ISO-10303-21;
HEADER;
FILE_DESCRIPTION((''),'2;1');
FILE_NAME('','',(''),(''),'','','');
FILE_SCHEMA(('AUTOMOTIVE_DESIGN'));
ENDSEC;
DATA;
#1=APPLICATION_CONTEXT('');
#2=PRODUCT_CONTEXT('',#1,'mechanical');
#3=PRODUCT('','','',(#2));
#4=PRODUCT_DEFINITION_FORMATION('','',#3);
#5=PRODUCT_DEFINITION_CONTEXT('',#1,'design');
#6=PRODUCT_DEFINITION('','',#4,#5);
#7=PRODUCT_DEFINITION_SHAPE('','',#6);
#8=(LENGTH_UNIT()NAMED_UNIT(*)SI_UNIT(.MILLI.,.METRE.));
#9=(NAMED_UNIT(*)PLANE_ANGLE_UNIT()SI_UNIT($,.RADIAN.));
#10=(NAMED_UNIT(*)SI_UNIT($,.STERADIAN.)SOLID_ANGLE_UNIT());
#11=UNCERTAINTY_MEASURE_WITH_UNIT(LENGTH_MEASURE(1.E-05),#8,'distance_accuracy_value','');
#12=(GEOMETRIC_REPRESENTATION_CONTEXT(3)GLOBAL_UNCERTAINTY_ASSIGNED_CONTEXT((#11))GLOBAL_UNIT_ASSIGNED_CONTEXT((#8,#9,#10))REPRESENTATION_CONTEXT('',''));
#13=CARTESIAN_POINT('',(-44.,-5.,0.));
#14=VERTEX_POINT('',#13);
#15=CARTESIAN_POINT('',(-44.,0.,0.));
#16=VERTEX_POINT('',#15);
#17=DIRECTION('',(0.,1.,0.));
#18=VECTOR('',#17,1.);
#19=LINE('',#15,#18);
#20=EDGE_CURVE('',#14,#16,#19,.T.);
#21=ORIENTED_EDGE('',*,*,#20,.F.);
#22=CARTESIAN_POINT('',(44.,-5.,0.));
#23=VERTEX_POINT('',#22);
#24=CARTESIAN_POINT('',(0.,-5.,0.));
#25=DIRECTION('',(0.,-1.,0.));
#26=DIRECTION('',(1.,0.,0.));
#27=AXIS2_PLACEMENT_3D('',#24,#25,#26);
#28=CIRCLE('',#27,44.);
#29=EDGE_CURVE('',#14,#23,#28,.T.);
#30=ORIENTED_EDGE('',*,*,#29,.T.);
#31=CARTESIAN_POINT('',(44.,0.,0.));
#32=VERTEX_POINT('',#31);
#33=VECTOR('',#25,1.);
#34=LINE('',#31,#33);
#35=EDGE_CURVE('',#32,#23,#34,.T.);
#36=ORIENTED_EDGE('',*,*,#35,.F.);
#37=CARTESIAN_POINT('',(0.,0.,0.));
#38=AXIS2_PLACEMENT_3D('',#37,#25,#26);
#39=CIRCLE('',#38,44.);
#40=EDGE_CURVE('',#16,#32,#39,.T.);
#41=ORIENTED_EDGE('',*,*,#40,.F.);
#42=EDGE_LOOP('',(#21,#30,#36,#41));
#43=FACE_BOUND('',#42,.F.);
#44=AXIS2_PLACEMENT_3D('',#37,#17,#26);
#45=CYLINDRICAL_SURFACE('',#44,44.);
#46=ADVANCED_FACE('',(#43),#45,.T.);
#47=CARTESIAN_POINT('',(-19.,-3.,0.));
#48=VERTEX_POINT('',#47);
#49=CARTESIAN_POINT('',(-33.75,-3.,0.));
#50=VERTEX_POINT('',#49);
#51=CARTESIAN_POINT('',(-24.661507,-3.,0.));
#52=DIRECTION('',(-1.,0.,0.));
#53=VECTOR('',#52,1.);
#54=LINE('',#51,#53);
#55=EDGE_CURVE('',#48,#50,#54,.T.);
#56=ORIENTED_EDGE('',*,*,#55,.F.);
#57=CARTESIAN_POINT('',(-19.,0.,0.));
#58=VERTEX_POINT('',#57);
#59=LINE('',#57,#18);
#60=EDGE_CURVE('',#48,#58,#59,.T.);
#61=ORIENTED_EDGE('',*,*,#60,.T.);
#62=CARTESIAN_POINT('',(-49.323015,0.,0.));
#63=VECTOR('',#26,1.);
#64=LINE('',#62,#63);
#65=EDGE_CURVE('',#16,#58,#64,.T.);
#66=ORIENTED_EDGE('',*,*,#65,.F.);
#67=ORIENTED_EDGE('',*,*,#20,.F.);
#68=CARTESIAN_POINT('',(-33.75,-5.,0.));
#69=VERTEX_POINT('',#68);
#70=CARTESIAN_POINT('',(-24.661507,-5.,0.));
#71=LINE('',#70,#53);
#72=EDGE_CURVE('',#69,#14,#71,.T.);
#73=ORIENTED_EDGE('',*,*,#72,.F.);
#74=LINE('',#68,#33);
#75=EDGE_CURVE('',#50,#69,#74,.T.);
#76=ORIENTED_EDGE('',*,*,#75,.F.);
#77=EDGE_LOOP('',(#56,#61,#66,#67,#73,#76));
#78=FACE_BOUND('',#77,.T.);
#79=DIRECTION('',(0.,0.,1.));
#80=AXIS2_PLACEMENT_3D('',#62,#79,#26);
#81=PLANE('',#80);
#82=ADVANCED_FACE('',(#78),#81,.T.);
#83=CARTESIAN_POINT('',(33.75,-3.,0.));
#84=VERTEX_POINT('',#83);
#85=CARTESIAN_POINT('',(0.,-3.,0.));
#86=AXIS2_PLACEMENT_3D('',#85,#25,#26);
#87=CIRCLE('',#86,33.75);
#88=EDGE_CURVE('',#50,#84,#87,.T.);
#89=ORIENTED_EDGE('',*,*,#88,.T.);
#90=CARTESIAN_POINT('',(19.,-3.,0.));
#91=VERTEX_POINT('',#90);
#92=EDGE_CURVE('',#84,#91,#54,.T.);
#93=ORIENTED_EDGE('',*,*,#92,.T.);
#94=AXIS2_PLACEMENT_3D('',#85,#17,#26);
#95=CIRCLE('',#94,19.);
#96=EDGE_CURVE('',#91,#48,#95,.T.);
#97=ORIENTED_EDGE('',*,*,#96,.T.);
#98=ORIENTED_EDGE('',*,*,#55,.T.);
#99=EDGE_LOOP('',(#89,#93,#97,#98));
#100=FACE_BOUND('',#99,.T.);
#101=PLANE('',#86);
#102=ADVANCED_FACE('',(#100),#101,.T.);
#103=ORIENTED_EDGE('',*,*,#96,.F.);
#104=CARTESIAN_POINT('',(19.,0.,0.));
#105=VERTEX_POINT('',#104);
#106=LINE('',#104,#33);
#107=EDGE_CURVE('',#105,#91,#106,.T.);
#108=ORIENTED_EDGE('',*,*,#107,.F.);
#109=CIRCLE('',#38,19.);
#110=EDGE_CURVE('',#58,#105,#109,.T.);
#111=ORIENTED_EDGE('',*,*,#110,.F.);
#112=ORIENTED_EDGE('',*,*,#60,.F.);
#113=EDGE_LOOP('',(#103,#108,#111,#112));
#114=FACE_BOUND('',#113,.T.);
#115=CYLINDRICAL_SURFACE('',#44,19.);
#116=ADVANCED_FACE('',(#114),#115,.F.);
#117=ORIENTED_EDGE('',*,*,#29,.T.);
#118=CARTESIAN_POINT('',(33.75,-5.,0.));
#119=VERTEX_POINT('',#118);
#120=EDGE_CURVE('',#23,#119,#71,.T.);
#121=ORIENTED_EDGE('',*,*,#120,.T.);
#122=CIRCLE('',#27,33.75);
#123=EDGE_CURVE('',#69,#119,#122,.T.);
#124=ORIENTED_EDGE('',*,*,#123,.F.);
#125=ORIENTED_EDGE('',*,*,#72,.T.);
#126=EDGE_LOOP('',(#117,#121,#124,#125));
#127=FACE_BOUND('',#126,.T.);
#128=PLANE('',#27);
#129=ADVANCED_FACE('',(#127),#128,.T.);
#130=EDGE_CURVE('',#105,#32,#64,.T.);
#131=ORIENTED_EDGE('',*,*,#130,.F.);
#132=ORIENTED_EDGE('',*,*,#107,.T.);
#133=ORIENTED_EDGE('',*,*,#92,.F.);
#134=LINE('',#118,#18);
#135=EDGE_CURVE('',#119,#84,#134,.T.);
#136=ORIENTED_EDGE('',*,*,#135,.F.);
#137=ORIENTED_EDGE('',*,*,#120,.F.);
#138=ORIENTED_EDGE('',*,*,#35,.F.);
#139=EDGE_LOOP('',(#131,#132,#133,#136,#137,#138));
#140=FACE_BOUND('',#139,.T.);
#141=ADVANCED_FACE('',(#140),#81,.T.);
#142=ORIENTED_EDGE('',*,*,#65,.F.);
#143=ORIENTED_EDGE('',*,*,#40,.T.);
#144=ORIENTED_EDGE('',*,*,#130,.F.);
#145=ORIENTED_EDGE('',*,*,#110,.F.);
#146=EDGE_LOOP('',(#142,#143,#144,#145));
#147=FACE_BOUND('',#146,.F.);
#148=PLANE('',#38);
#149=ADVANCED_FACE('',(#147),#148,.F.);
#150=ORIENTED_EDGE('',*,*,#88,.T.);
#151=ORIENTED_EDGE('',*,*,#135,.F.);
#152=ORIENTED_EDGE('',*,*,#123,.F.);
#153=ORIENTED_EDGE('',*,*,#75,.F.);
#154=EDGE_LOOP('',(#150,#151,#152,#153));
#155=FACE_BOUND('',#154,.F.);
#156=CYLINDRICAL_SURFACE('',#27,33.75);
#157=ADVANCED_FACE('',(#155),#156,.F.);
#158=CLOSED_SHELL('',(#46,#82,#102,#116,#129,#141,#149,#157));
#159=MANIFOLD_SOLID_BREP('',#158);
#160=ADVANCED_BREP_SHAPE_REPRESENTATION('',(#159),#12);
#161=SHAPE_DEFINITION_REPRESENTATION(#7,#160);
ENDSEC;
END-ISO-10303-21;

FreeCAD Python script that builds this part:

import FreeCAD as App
import Part
import Sketcher
from FreeCAD import Vector

doc = App.newDocument("Part")
params = doc.addObject("Spreadsheet::Sheet", "Params")
for row, (alias, value) in enumerate([
    ("sketch1_diameter", "88 mm"),
    ("sketch1_diameter2", "38 mm"),
    ("pad1_length", "5 mm"),
    ("sketch2_diameter", "67.5 mm"),
    ("pocket1_length", "2 mm"),
    ("pocket2_length", "25 mm"),
], start=1):
    params.set(f"A{row}", alias)
    params.set(f"B{row}", "=" + value)
    params.setAlias(f"B{row}", alias)

body = doc.addObject("PartDesign::Body", "Body")

# Sketch on XZ plane
sketch1 = body.newObject("Sketcher::SketchObject", "Sketch")
sketch1.AttachmentSupport = (doc.getObject("XZ_Plane"), [""])
sketch1.MapMode = "FlatFace"
sketch1.addGeometry([
    Part.Circle(Vector(0, 0, 0), Vector(0, 0, 1), 44),
    Part.Circle(Vector(0, 0, 0), Vector(0, 0, 1), 19),
], False)
sketch1.addConstraint([
    Sketcher.Constraint("Coincident", 0, 3, -1, 1),
    Sketcher.Constraint("Coincident", 1, 3, -1, 1),
    Sketcher.Constraint("Diameter", 0, 88.0),
    Sketcher.Constraint("Diameter", 1, 38.0),
])
sketch1.setExpression("Constraints[2]", "Params.sketch1_diameter")
sketch1.setExpression("Constraints[3]", "Params.sketch1_diameter2")
pad1 = body.newObject("PartDesign::Pad", "Pad")
pad1.Profile = sketch1
pad1.setExpression("Length", "Params.pad1_length")

# Sketch on XZ plane
sketch2 = body.newObject("Sketcher::SketchObject", "Sketch001")
sketch2.AttachmentSupport = (doc.getObject("XZ_Plane"), [""])
sketch2.MapMode = "FlatFace"
sketch2.AttachmentOffset = App.Placement(Vector(0, 0, 5), App.Rotation())
sketch2.addGeometry(Part.Circle(Vector(0, 0, 0), Vector(0, 0, 1), 34), False)
sketch2.addConstraint([
    Sketcher.Constraint("Coincident", 0, 3, -1, 1),
    Sketcher.Constraint("Diameter", 0, 67.5),
])
sketch2.setExpression("Constraints[1]", "Params.sketch2_diameter")
pocket1 = body.newObject("PartDesign::Pocket", "Pocket")
pocket1.Profile = sketch2
pocket1.setExpression("Length", "Params.pocket1_length")

# Sketch on XZ plane
sketch3 = body.newObject("Sketcher::SketchObject", "Sketch002")
sketch3.AttachmentSupport = (doc.getObject("XZ_Plane"), [""])
sketch3.MapMode = "FlatFace"
sketch3.addGeometry([
    Part.LineSegment(Vector(-49, 0, 0), Vector(50, 0, 0)),  # 0
    Part.LineSegment(Vector(50, 0, 0), Vector(50, 36, 0)),  # 1
    Part.LineSegment(Vector(50, 36, 0), Vector(0, 52, 0)),  # 2
    Part.LineSegment(Vector(0, 52, 0), Vector(-49, 42, 0)),  # 3
    Part.LineSegment(Vector(-49, 42, 0), Vector(-49, 0, 0)),  # 4
], False)
sketch3.addConstraint([
    Sketcher.Constraint("Coincident", 0, 2, 1, 1),
    Sketcher.Constraint("Coincident", 1, 2, 2, 1),
    Sketcher.Constraint("Coincident", 2, 2, 3, 1),
    Sketcher.Constraint("Coincident", 3, 2, 4, 1),
    Sketcher.Constraint("Coincident", 4, 2, 0, 1),
    Sketcher.Constraint("Horizontal", 0),
    Sketcher.Constraint("Vertical", 1),
    Sketcher.Constraint("Vertical", 4),
    Sketcher.Constraint("PointOnObject", 0, 2, -1),
    Sketcher.Constraint("PointOnObject", 2, 2, -2),
    Sketcher.Constraint("DistanceY", 1, 1, 1, 2, 35.833221),
    Sketcher.Constraint("DistanceY", 4, 2, 4, 1, 41.89574),
    Sketcher.Constraint("Distance", 2, 52.834271),
    Sketcher.Constraint("DistanceX", 0, 1, 0, 2, 99.694707),
    Sketcher.Constraint("DistanceY", -1, 1, 2, 2, 51.775392),
])
pocket2 = body.newObject("PartDesign::Pocket", "Pocket001")
pocket2.Profile = sketch3
pocket2.setExpression("Length", "Params.pocket2_length")
pocket2.Reversed = True

doc.recompute()
